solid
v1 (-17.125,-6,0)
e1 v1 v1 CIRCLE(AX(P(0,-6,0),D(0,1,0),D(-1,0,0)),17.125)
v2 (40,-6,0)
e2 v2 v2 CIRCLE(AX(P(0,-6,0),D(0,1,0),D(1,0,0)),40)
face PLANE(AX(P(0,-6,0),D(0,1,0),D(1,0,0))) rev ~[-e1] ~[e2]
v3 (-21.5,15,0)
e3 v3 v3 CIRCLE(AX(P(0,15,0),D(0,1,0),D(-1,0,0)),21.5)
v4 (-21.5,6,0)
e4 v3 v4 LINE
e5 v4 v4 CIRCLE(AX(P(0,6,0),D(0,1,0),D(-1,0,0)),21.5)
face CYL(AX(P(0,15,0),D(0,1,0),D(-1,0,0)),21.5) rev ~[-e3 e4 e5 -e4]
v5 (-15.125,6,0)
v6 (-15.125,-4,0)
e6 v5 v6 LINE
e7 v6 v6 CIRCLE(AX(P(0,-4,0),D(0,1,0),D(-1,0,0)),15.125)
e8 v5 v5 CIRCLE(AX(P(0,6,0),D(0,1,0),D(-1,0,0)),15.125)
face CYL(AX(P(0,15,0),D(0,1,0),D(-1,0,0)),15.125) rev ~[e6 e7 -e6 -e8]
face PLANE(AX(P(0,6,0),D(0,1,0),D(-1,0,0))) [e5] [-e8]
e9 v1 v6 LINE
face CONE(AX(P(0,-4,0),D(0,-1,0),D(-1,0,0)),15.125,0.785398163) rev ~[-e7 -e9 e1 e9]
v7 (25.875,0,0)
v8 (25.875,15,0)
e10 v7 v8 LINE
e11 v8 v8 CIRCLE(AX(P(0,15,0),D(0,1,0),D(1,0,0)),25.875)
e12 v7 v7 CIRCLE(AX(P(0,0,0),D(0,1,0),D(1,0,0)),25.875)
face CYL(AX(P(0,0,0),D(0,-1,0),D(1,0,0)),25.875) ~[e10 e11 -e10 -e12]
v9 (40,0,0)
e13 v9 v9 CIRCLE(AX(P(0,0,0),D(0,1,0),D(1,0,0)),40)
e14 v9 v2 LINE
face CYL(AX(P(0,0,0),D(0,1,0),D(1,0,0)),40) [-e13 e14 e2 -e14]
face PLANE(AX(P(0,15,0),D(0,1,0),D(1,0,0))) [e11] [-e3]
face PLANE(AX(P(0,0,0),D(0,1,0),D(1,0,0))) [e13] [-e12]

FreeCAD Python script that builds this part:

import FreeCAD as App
import Part
import Sketcher

V = App.Vector


def edges_at(feature, points):
    """Names of the edges that pass closest to the given points."""
    edges = feature.Shape.Edges
    near = lambda p: min(range(len(edges)), key=lambda i: edges[i].distToShape(Part.Vertex(*p))[0])
    return sorted({f"Edge{near(p) + 1}" for p in points})

doc = App.newDocument("Part")
params = doc.addObject("Spreadsheet::Sheet", "Params")
for row, (alias, value) in enumerate([
    ("sketch1_diameter", "51.75 mm"),
    ("pad1_length", "15 mm"),
    ("sketch2_diameter", "80 mm"),
    ("pad2_length", "6 mm"),
    ("sketch3_diameter", "30.25 mm"),
    ("pocket1_length", "77.834 mm"),
    ("sketch4_diameter", "43 mm"),
    ("sketch4_diameter2", "30.25 mm"),
    ("pocket2_length", "9 mm"),
    ("chamfer_size", "2 mm"),
], start=1):
    params.set(f"A{row}", alias)
    params.set(f"B{row}", "=" + value)
    params.setAlias(f"B{row}", alias)

body = doc.addObject("PartDesign::Body", "Body")

# Sketch on XZ plane
sketch1 = body.newObject("Sketcher::SketchObject", "Sketch")
sketch1.AttachmentSupport = (doc.getObject("XZ_Plane"), [""])
sketch1.MapMode = "FlatFace"
sketch1.addGeometry(Part.Circle(V(0, 0, 0), V(0, 0, 1), 25.875), False)
sketch1.addConstraint(Sketcher.Constraint("Coincident", 0, 3, -1, 1))
sketch1.addConstraint(Sketcher.Constraint("Diameter", 0, 51.75))
sketch1.setExpression("Constraints[1]", "Params.sketch1_diameter")
pad1 = body.newObject("PartDesign::Pad", "Pad")
pad1.Profile = sketch1
pad1.setExpression("Length", "Params.pad1_length")
pad1.Reversed = True

# Sketch on XZ plane
sketch2 = body.newObject("Sketcher::SketchObject", "Sketch001")
sketch2.AttachmentSupport = (doc.getObject("XZ_Plane"), [""])
sketch2.MapMode = "FlatFace"
sketch2.addGeometry(Part.Circle(V(0, 0, 0), V(0, 0, 1), 40), False)
sketch2.addConstraint(Sketcher.Constraint("Coincident", 0, 3, -1, 1))
sketch2.addConstraint(Sketcher.Constraint("Diameter", 0, 80.0))
sketch2.setExpression("Constraints[1]", "Params.sketch2_diameter")
pad2 = body.newObject("PartDesign::Pad", "Pad001")
pad2.Profile = sketch2
pad2.setExpression("Length", "Params.pad2_length")

# Sketch on XZ plane
sketch3 = body.newObject("Sketcher::SketchObject", "Sketch002")
sketch3.AttachmentSupport = (doc.getObject("XZ_Plane"), [""])
sketch3.MapMode = "FlatFace"
sketch3.AttachmentOffset = App.Placement(V(0, 0, -15), App.Rotation())
sketch3.addGeometry(Part.Circle(V(0, 0, 0), V(0, 0, 1), 15.125), False)
sketch3.addConstraint(Sketcher.Constraint("Coincident", 0, 3, -1, 1))
sketch3.addConstraint(Sketcher.Constraint("Diameter", 0, 30.25))
sketch3.setExpression("Constraints[1]", "Params.sketch3_diameter")
pocket1 = body.newObject("PartDesign::Pocket", "Pocket")
pocket1.Profile = sketch3
pocket1.setExpression("Length", "Params.pocket1_length")
pocket1.Reversed = True

# Sketch on XZ plane
sketch4 = body.newObject("Sketcher::SketchObject", "Sketch003")
sketch4.AttachmentSupport = (doc.getObject("XZ_Plane"), [""])
sketch4.MapMode = "FlatFace"
sketch4.AttachmentOffset = App.Placement(V(0, 0, -15), App.Rotation())
sketch4.addGeometry(Part.Circle(V(0, 0, 0), V(0, 0, 1), 21.5), False)
sketch4.addGeometry(Part.Circle(V(0, 0, 0), V(0, 0, 1), 15.125), False)
sketch4.addConstraint(Sketcher.Constraint("Coincident", 0, 3, -1, 1))
sketch4.addConstraint(Sketcher.Constraint("Coincident", 1, 3, -1, 1))
sketch4.addConstraint(Sketcher.Constraint("Diameter", 0, 43.0))
sketch4.addConstraint(Sketcher.Constraint("Diameter", 1, 30.25))
sketch4.setExpression("Constraints[2]", "Params.sketch4_diameter")
sketch4.setExpression("Constraints[3]", "Params.sketch4_diameter2")
pocket2 = body.newObject("PartDesign::Pocket", "Pocket001")
pocket2.Profile = sketch4
pocket2.setExpression("Length", "Params.pocket2_length")
pocket2.Reversed = True
doc.recompute()

chamfer = body.newObject("PartDesign::Chamfer", "Chamfer")
chamfer.Base = (pocket2, edges_at(pocket2, [(14.101, -6, -5.469)]))
chamfer.setExpression("Size", "Params.chamfer_size")

doc.recompute()
